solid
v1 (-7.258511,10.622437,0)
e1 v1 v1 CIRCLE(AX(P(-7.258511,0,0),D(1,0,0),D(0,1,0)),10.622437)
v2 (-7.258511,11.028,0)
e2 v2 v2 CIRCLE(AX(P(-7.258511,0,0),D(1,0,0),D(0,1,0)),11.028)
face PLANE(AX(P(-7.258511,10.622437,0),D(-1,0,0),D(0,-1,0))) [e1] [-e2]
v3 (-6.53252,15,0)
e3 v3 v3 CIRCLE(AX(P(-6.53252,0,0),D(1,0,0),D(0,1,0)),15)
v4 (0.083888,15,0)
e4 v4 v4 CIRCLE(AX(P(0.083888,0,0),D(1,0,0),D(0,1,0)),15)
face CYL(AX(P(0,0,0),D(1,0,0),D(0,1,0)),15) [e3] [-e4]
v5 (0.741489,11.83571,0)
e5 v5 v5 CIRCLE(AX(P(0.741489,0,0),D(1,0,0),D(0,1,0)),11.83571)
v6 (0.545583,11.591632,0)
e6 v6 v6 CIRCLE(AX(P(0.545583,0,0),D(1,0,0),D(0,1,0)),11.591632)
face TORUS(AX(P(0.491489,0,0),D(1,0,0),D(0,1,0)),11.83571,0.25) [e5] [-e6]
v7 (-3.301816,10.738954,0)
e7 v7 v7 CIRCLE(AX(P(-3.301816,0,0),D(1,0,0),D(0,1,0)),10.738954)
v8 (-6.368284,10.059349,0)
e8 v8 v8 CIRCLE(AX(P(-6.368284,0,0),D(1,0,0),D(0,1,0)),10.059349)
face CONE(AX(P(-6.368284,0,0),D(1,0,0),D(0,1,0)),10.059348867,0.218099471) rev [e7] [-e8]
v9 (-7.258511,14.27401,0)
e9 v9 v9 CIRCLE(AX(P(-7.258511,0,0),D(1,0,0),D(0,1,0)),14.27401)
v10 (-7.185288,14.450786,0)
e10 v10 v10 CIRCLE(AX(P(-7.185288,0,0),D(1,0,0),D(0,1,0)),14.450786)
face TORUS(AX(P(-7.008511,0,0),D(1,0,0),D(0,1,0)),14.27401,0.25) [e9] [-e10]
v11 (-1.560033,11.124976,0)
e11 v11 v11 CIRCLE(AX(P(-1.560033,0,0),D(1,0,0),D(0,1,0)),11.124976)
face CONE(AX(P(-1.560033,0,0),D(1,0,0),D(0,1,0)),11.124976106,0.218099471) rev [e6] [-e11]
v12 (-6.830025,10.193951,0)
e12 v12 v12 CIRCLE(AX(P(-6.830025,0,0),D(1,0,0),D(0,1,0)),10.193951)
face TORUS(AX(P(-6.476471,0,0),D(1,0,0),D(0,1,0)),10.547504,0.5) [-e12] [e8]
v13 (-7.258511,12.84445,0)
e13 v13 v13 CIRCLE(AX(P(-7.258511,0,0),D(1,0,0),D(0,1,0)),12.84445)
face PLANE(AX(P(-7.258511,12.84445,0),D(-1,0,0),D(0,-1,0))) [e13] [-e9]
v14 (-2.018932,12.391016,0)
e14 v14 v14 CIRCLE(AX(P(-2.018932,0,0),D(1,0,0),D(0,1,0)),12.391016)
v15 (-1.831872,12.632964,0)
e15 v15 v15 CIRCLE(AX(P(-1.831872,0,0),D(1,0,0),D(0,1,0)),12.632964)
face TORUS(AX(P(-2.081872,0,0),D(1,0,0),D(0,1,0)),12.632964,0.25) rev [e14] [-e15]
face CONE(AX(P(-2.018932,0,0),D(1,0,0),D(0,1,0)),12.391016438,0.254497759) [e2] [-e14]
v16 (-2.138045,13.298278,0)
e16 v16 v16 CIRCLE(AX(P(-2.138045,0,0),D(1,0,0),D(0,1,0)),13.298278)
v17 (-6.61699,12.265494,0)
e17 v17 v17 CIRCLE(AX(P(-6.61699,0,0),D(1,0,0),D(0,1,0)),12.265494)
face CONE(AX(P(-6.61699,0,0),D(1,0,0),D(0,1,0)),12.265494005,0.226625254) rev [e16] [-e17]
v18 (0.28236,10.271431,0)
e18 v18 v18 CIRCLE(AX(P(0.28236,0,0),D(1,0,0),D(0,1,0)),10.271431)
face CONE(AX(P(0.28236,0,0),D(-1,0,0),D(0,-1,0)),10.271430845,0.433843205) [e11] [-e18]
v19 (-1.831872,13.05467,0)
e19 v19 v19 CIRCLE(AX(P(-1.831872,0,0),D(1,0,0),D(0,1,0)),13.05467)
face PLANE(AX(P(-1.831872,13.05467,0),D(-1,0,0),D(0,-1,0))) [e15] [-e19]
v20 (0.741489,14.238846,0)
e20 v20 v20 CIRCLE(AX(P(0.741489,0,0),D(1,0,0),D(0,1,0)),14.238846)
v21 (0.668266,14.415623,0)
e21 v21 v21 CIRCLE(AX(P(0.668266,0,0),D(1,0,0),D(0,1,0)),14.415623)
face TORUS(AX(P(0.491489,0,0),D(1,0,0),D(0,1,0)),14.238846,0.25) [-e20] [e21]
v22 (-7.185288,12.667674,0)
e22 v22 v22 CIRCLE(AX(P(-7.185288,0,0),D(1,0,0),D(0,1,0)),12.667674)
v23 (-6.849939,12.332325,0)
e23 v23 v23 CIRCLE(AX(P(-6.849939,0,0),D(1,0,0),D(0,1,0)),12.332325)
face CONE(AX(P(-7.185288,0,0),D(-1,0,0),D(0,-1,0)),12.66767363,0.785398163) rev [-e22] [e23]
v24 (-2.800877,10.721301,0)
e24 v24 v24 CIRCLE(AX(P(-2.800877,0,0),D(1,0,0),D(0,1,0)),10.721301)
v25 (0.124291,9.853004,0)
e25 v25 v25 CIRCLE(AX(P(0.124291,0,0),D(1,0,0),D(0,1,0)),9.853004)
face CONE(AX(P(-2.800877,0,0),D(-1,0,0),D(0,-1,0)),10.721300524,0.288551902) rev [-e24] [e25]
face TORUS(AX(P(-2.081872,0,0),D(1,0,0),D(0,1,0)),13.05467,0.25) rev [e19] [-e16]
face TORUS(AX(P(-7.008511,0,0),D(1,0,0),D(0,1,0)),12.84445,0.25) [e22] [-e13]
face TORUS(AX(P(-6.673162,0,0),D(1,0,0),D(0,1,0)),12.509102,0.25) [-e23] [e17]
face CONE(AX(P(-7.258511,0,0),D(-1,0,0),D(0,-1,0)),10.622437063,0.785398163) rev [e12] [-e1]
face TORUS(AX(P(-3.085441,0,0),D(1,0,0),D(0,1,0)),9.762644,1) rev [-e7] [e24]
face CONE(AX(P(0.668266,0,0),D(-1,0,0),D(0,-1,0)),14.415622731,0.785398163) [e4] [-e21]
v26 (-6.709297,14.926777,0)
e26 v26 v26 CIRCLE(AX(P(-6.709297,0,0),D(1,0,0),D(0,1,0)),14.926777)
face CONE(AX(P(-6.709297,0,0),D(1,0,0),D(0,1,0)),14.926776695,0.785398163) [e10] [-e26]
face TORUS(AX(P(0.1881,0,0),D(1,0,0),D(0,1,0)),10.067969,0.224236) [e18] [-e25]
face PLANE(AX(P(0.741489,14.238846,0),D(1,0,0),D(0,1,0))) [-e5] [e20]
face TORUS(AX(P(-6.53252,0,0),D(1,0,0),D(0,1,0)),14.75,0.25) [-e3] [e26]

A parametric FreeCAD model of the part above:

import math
import FreeCAD as App
import Part
import Sketcher

doc = App.newDocument("Part")
body = doc.addObject("PartDesign::Body", "Body")

sketch1 = body.newObject("Sketcher::SketchObject", "Sketch")
sketch1.AttachmentSupport = (doc.getObject("XY_Plane"), [""])
sketch1.MapMode = "FlatFace"
sketch1.addGeometry(Part.LineSegment(App.Vector(-7.185288, 12.667674, 0), App.Vector(-6.849939, 12.332325, 0)), False)
sketch1.addGeometry(Part.ArcOfCircle(Part.Circle(App.Vector(-6.673162, 12.509102, 0), App.Vector(0, 0, 1), 0.25), math.radians(-135), math.radians(-77.015329)), False)
sketch1.addGeometry(Part.LineSegment(App.Vector(-6.61699, 12.265494, 0), App.Vector(-2.138045, 13.298278, 0)), False)
sketch1.addGeometry(Part.ArcOfCircle(Part.Circle(App.Vector(-2.081872, 13.05467, 0), App.Vector(0, 0, 1), 0.25), math.radians(0), math.radians(102.98467)), False)
sketch1.addGeometry(Part.LineSegment(App.Vector(-1.831872, 13.05467, 0), App.Vector(-1.831872, 12.632964, 0)), False)
sketch1.addGeometry(Part.ArcOfCircle(Part.Circle(App.Vector(-2.081872, 12.632964, 0), App.Vector(0, 0, 1), 0.25), math.radians(-75.418353), math.radians(0)), False)
sketch1.addGeometry(Part.LineSegment(App.Vector(-2.018932, 12.391016, 0), App.Vector(-7.258511, 11.028, 0)), False)
sketch1.addGeometry(Part.LineSegment(App.Vector(-7.258511, 11.028, 0), App.Vector(-7.258511, 10.622437, 0)), False)
sketch1.addGeometry(Part.LineSegment(App.Vector(-7.258511, 10.622437, 0), App.Vector(-6.830025, 10.193951, 0)), False)
sketch1.addGeometry(Part.ArcOfCircle(Part.Circle(App.Vector(-6.476471, 10.547504, 0), App.Vector(0, 0, 1), 0.5), math.radians(-135), math.radians(-77.503821)), False)
sketch1.addGeometry(Part.LineSegment(App.Vector(-6.368284, 10.059349, 0), App.Vector(-3.301816, 10.738954, 0)), False)
sketch1.addGeometry(Part.ArcOfCircle(Part.Circle(App.Vector(-3.085441, 9.762644, 0), App.Vector(0, 0, 1), 1), math.radians(73.467194), math.radians(102.496179)), False)
sketch1.addGeometry(Part.LineSegment(App.Vector(-2.800877, 10.721301, 0), App.Vector(0.124291, 9.853004, 0)), False)
sketch1.addGeometry(Part.ArcOfCircle(Part.Circle(App.Vector(0.1881, 10.067969, 0), App.Vector(0, 0, 1), 0.224236), math.radians(-106.532806), math.radians(65.142615)), False)
sketch1.addGeometry(Part.LineSegment(App.Vector(0.28236, 10.271431, 0), App.Vector(-1.560033, 11.124976, 0)), False)
sketch1.addGeometry(Part.LineSegment(App.Vector(-1.560033, 11.124976, 0), App.Vector(0.545583, 11.591632, 0)), False)
sketch1.addGeometry(Part.ArcOfCircle(Part.Circle(App.Vector(0.491489, 11.83571, 0), App.Vector(0, 0, 1), 0.25), math.radians(-77.503821), math.radians(0)), False)
sketch1.addGeometry(Part.LineSegment(App.Vector(0.741489, 11.83571, 0), App.Vector(0.741489, 14.238846, 0)), False)
sketch1.addGeometry(Part.ArcOfCircle(Part.Circle(App.Vector(0.491489, 14.238846, 0), App.Vector(0, 0, 1), 0.25), math.radians(-0.000001), math.radians(45)), False)
sketch1.addGeometry(Part.LineSegment(App.Vector(0.668266, 14.415623, 0), App.Vector(0.083888, 15, 0)), False)
sketch1.addGeometry(Part.LineSegment(App.Vector(0.083888, 15, 0), App.Vector(-6.53252, 15, 0)), False)
sketch1.addGeometry(Part.ArcOfCircle(Part.Circle(App.Vector(-6.53252, 14.75, 0), App.Vector(0, 0, 1), 0.25), math.radians(90), math.radians(135)), False)
sketch1.addGeometry(Part.LineSegment(App.Vector(-6.709297, 14.926777, 0), App.Vector(-7.185288, 14.450786, 0)), False)
sketch1.addGeometry(Part.ArcOfCircle(Part.Circle(App.Vector(-7.008511, 14.27401, 0), App.Vector(0, 0, 1), 0.25), math.radians(135), math.radians(180)), False)
sketch1.addGeometry(Part.LineSegment(App.Vector(-7.258511, 14.27401, 0), App.Vector(-7.258511, 12.84445, 0)), False)
sketch1.addGeometry(Part.ArcOfCircle(Part.Circle(App.Vector(-7.008511, 12.84445, 0), App.Vector(0, 0, 1), 0.25), math.radians(180), math.radians(225)), False)
sketch1.addConstraint(Sketcher.Constraint("Coincident", 0, 2, 1, 1))
sketch1.addConstraint(Sketcher.Constraint("Coincident", 1, 2, 2, 1))
sketch1.addConstraint(Sketcher.Constraint("Coincident", 2, 2, 3, 2))
sketch1.addConstraint(Sketcher.Constraint("Coincident", 3, 1, 4, 1))
sketch1.addConstraint(Sketcher.Constraint("Coincident", 4, 2, 5, 2))
sketch1.addConstraint(Sketcher.Constraint("Coincident", 5, 1, 6, 1))
sketch1.addConstraint(Sketcher.Constraint("Coincident", 6, 2, 7, 1))
sketch1.addConstraint(Sketcher.Constraint("Coincident", 7, 2, 8, 1))
sketch1.addConstraint(Sketcher.Constraint("Coincident", 8, 2, 9, 1))
sketch1.addConstraint(Sketcher.Constraint("Coincident", 9, 2, 10, 1))
sketch1.addConstraint(Sketcher.Constraint("Coincident", 10, 2, 11, 2))
sketch1.addConstraint(Sketcher.Constraint("Coincident", 11, 1, 12, 1))
sketch1.addConstraint(Sketcher.Constraint("Coincident", 12, 2, 13, 1))
sketch1.addConstraint(Sketcher.Constraint("Coincident", 13, 2, 14, 1))
sketch1.addConstraint(Sketcher.Constraint("Coincident", 14, 2, 15, 1))
sketch1.addConstraint(Sketcher.Constraint("Coincident", 15, 2, 16, 1))
sketch1.addConstraint(Sketcher.Constraint("Coincident", 16, 2, 17, 1))
sketch1.addConstraint(Sketcher.Constraint("Coincident", 17, 2, 18, 1))
sketch1.addConstraint(Sketcher.Constraint("Coincident", 18, 2, 19, 1))
sketch1.addConstraint(Sketcher.Constraint("Coincident", 19, 2, 20, 1))
sketch1.addConstraint(Sketcher.Constraint("Coincident", 20, 2, 21, 1))
sketch1.addConstraint(Sketcher.Constraint("Coincident", 21, 2, 22, 1))
sketch1.addConstraint(Sketcher.Constraint("Coincident", 22, 2, 23, 1))
sketch1.addConstraint(Sketcher.Constraint("Coincident", 23, 2, 24, 1))
sketch1.addConstraint(Sketcher.Constraint("Coincident", 24, 2, 25, 1))
sketch1.addConstraint(Sketcher.Constraint("Coincident", 25, 2, 0, 1))
sketch1.addConstraint(Sketcher.Constraint("Vertical", 4))
sketch1.addConstraint(Sketcher.Constraint("Vertical", 7))
sketch1.addConstraint(Sketcher.Constraint("Vertical", 17))
sketch1.addConstraint(Sketcher.Constraint("Horizontal", 20))
sketch1.addConstraint(Sketcher.Constraint("Vertical", 24))
sketch1.addConstraint(Sketcher.Constraint("Radius", 11, 1.0))
sketch1.addConstraint(Sketcher.Constraint("Radius", 9, 0.5))
sketch1.addConstraint(Sketcher.Constraint("Radius", 1, 0.25))
sketch1.addConstraint(Sketcher.Constraint("Radius", 3, 0.25))
sketch1.addConstraint(Sketcher.Constraint("Radius", 5, 0.25))
sketch1.addConstraint(Sketcher.Constraint("Radius", 16, 0.25))
sketch1.addConstraint(Sketcher.Constraint("Radius", 18, 0.25))
sketch1.addConstraint(Sketcher.Constraint("Radius", 21, 0.25))
sketch1.addConstraint(Sketcher.Constraint("Radius", 23, 0.25))
sketch1.addConstraint(Sketcher.Constraint("Radius", 25, 0.25))
sketch1.addConstraint(Sketcher.Constraint("DistanceY", -1, 1, 19, 2, 15.0))
sketch1.addConstraint(Sketcher.Constraint("DistanceX", 6, 2, 25, 3, 0.25))
sketch1.addConstraint(Sketcher.Constraint("DistanceY", -1, 1, 6, 2, 11.028))
sketch1.addConstraint(Sketcher.Constraint("Radius", 13, 0.224236))
sketch1.addConstraint(Sketcher.Constraint("DistanceX", 20, 2, 20, 1, 6.616409))
sketch1.addConstraint(Sketcher.Constraint("DistanceY", 24, 2, 24, 1, 1.429559))
sketch1.addConstraint(Sketcher.Constraint("DistanceY", -1, 1, 1, 3, 12.509102))
sketch1.addConstraint(Sketcher.Constraint("DistanceX", -1, 1, 13, 3, 0.1881))
sketch1.addConstraint(Sketcher.Constraint("DistanceY", -1, 1, 11, 1, 10.721301))
sketch1.addConstraint(Sketcher.Constraint("DistanceX", 9, 3, 5, 3, 4.394599))
sketch1.addConstraint(Sketcher.Constraint("DistanceY", 13, 3, 3, 3, 2.986701))
sketch1.addConstraint(Sketcher.Constraint("DistanceY", 9, 2, 8, 2, 0.134602))
sketch1.addConstraint(Sketcher.Constraint("DistanceX", 12, 2, 16, 3, 0.367198))
sketch1.addConstraint(Sketcher.Constraint("DistanceX", 5, 1, 14, 2, 0.4589))
sketch1.addConstraint(Sketcher.Constraint("DistanceY", 13, 2, 15, 2, 1.320202))
sketch1.addConstraint(Sketcher.Constraint("DistanceX", 19, 2, 18, 3, 0.407601))
sketch1.addConstraint(Sketcher.Constraint("DistanceX", 25, 2, 1, 2, 0.568298))
sketch1.addConstraint(Sketcher.Constraint("Distance", 8, 0.605971))
sketch1.addConstraint(Sketcher.Constraint("Distance", 12, 3.051318))
sketch1.addConstraint(Sketcher.Constraint("DistanceY", 4, 2, 4, 1, 0.421706))
sketch1.addConstraint(Sketcher.Constraint("DistanceY", 7, 2, 7, 1, 0.405563))
sketch1.addConstraint(Sketcher.Constraint("DistanceY", 17, 1, 17, 2, 2.403136))
sketch1.addConstraint(Sketcher.Constraint("DistanceY", -1, 1, 3, 3, 13.05467))
sketch1.addConstraint(Sketcher.Constraint("DistanceX", 9, 3, -1, 1, 6.476471))
sketch1.addConstraint(Sketcher.Constraint("DistanceX", 11, 3, -1, 1, 3.085441))
sketch1.addConstraint(Sketcher.Constraint("DistanceX", -1, 1, 16, 3, 0.491489))
sketch1.addConstraint(Sketcher.Constraint("DistanceY", -1, 1, 16, 3, 11.83571))
sketch1.addConstraint(Sketcher.Constraint("DistanceX", 21, 3, -1, 1, 6.53252))
sketch1.addConstraint(Sketcher.Constraint("DistanceX", 23, 3, -1, 1, 7.008511))
sketch1.addConstraint(Sketcher.Constraint("DistanceY", -1, 1, 23, 3, 14.27401))
sketch1.addConstraint(Sketcher.Constraint("DistanceY", -1, 1, 25, 3, 12.84445))
sketch1.addConstraint(Sketcher.Constraint("DistanceX", 0, 2, -1, 1, 6.849939))
sketch1.addConstraint(Sketcher.Constraint("DistanceX", 1, 2, -1, 1, 6.61699))
sketch1.addConstraint(Sketcher.Constraint("DistanceY", -1, 1, 3, 1, 13.05467))
sketch1.addConstraint(Sketcher.Constraint("DistanceY", -1, 1, 8, 2, 10.193951))
sketch1.addConstraint(Sketcher.Constraint("DistanceX", -1, 1, 13, 2, 0.28236))
sketch1.addConstraint(Sketcher.Constraint("DistanceY", -1, 1, 16, 2, 11.83571))
sketch1.addConstraint(Sketcher.Constraint("DistanceY", -1, 1, 23, 2, 14.27401))
sketch1.addConstraint(Sketcher.Constraint("DistanceX", 1, 3, 3, 3, 4.59129))
sketch1.addConstraint(Sketcher.Constraint("DistanceY", 9, 3, 5, 3, 2.08546))
sketch1.addConstraint(Sketcher.Constraint("DistanceY", 2, 2, 18, 3, 0.940568))
sketch1.addConstraint(Sketcher.Constraint("DistanceX", 5, 3, 5, 1, 0.06294))
sketch1.addConstraint(Sketcher.Constraint("DistanceY", 5, 1, 2, 2, 0.907261))
sketch1.addConstraint(Sketcher.Constraint("DistanceY", 11, 3, 10, 2, 0.97631))
sketch1.addConstraint(Sketcher.Constraint("DistanceY", 14, 2, 5, 1, 1.26604))
sketch1.addConstraint(Sketcher.Constraint("DistanceY", 15, 2, 18, 2, 2.82399))
sketch1.addConstraint(Sketcher.Constraint("DistanceX", 22, 2, 21, 2, 0.47599))
sketch1.addConstraint(Sketcher.Constraint("DistanceX", 21, 2, -1, 1, 6.709297))
revolution = body.newObject("PartDesign::Revolution", "Revolution")
revolution.Profile = sketch1
revolution.ReferenceAxis = (sketch1, ["H_Axis"])
revolution.Angle = 360

doc.recompute()
